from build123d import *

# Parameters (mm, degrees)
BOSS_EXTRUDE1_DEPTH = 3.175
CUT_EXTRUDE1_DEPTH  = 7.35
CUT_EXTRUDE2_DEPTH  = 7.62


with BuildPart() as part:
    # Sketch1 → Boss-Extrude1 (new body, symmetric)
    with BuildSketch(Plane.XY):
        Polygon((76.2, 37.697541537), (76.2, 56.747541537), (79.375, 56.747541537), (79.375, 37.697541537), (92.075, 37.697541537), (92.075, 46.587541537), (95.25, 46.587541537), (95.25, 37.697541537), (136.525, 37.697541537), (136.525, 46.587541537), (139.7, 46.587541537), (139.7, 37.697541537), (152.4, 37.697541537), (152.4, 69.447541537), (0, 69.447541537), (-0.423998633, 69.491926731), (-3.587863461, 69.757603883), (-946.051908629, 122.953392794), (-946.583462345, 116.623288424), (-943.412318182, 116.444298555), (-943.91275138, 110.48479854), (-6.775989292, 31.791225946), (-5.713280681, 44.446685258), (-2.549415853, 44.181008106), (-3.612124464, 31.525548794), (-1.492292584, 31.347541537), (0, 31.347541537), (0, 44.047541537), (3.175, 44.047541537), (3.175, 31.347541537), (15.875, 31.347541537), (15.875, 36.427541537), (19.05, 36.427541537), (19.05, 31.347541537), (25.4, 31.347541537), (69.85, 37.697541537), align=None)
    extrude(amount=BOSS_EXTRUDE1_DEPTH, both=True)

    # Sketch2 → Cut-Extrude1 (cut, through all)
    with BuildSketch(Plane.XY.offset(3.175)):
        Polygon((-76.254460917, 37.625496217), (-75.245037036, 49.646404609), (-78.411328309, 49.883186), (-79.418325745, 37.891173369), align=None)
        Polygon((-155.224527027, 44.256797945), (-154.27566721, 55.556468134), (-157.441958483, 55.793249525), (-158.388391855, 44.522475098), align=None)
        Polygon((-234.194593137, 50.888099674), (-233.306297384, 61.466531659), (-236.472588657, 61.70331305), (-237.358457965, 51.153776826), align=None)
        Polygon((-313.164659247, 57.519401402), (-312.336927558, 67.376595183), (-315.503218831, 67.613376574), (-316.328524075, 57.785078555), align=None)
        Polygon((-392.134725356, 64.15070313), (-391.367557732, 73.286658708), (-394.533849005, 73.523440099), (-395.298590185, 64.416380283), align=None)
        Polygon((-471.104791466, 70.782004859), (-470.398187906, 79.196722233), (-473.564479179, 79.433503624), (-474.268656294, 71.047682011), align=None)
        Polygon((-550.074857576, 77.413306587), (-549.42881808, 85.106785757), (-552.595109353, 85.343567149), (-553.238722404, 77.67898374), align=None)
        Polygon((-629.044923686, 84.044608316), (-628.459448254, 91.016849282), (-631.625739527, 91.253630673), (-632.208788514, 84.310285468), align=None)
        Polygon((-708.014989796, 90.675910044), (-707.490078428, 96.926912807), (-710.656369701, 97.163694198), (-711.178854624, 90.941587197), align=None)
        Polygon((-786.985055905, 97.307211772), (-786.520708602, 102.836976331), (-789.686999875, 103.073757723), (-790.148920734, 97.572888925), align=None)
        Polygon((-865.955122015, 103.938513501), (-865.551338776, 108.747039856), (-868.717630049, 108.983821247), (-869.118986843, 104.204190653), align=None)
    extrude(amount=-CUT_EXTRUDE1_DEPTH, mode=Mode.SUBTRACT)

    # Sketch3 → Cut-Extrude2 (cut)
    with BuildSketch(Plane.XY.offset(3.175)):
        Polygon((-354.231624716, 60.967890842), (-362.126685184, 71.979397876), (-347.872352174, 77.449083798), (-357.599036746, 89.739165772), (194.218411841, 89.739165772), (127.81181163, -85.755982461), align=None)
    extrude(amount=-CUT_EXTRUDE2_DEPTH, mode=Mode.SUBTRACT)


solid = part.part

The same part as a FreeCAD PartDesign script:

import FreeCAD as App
import Part
import Sketcher
from FreeCAD import Vector
Q = App.Units.Quantity

doc = App.newDocument("Part")
params = doc.addObject("Spreadsheet::Sheet", "Params")
for row, (alias, value) in enumerate([
    ("sketch1_width", "6 in"),
    ("sketch1_width2", "0.5 in"),
    ("sketch1_height", "0.2 in"),
    ("sketch1_length", "0.5 in"),
    ("sketch1_width3", "0.25 in"),
    ("pad1_length", "0.25 in"),
    ("sketch2_length", "0.125 in"),
    ("pocket2_length", "0.3 in"),
], start=1):
    params.set(f"A{row}", alias)
    params.set(f"B{row}", "=" + value)
    params.setAlias(f"B{row}", alias)

body = doc.addObject("PartDesign::Body", "Body")

# Sketch on XY plane
sketch1 = body.newObject("Sketcher::SketchObject", "Sketch")
sketch1.AttachmentSupport = (doc.getObject("XY_Plane"), [""])
sketch1.MapMode = "FlatFace"
sketch1.addGeometry([
    Part.LineSegment(Vector(76.2, 37.7, 0), Vector(76.2, 56.75, 0)),  # 0
    Part.LineSegment(Vector(76.2, 56.75, 0), Vector(79.38, 56.75, 0)),  # 1
    Part.LineSegment(Vector(79.38, 56.75, 0), Vector(79.38, 37.7, 0)),  # 2
    Part.LineSegment(Vector(79.38, 37.7, 0), Vector(92.08, 37.7, 0)),  # 3
    Part.LineSegment(Vector(92.08, 37.7, 0), Vector(92.08, 46.59, 0)),  # 4
    Part.LineSegment(Vector(92.08, 46.59, 0), Vector(95.25, 46.59, 0)),  # 5
    Part.LineSegment(Vector(95.25, 46.59, 0), Vector(95.25, 37.7, 0)),  # 6
    Part.LineSegment(Vector(95.25, 37.7, 0), Vector(136.53, 37.7, 0)),  # 7
    Part.LineSegment(Vector(136.53, 37.7, 0), Vector(136.53, 46.59, 0)),  # 8
    Part.LineSegment(Vector(136.53, 46.59, 0), Vector(139.7, 46.59, 0)),  # 9
    Part.LineSegment(Vector(139.7, 46.59, 0), Vector(139.7, 37.7, 0)),  # 10
    Part.LineSegment(Vector(139.7, 37.7, 0), Vector(152.4, 37.7, 0)),  # 11
    Part.LineSegment(Vector(152.4, 37.7, 0), Vector(152.4, 69.45, 0)),  # 12
    Part.LineSegment(Vector(152.4, 69.45, 0), Vector(0, 69.45, 0)),  # 13
    Part.LineSegment(Vector(0, 69.45, 0), Vector(-0.42, 69.49, 0)),  # 14
    Part.LineSegment(Vector(-0.42, 69.49, 0), Vector(-3.59, 69.76, 0)),  # 15
    Part.LineSegment(Vector(-3.59, 69.76, 0), Vector(-946.05, 122.95, 0)),  # 16
    Part.LineSegment(Vector(-946.05, 122.95, 0), Vector(-946.58, 116.62, 0)),  # 17
    Part.LineSegment(Vector(-946.58, 116.62, 0), Vector(-943.41, 116.44, 0)),  # 18
    Part.LineSegment(Vector(-943.41, 116.44, 0), Vector(-943.91, 110.48, 0)),  # 19
    Part.LineSegment(Vector(-943.91, 110.48, 0), Vector(-6.78, 31.79, 0)),  # 20
    Part.LineSegment(Vector(-6.78, 31.79, 0), Vector(-5.71, 44.45, 0)),  # 21
    Part.LineSegment(Vector(-5.71, 44.45, 0), Vector(-2.55, 44.18, 0)),  # 22
    Part.LineSegment(Vector(-2.55, 44.18, 0), Vector(-3.61, 31.53, 0)),  # 23
    Part.LineSegment(Vector(-3.61, 31.53, 0), Vector(-1.49, 31.35, 0)),  # 24
    Part.LineSegment(Vector(-1.49, 31.35, 0), Vector(0, 31.35, 0)),  # 25
    Part.LineSegment(Vector(0, 31.35, 0), Vector(0, 44.05, 0)),  # 26
    Part.LineSegment(Vector(0, 44.05, 0), Vector(3.17, 44.05, 0)),  # 27
    Part.LineSegment(Vector(3.17, 44.05, 0), Vector(3.17, 31.35, 0)),  # 28
    Part.LineSegment(Vector(3.17, 31.35, 0), Vector(15.88, 31.35, 0)),  # 29
    Part.LineSegment(Vector(15.88, 31.35, 0), Vector(15.88, 36.43, 0)),  # 30
    Part.LineSegment(Vector(15.88, 36.43, 0), Vector(19.05, 36.43, 0)),  # 31
    Part.LineSegment(Vector(19.05, 36.43, 0), Vector(19.05, 31.35, 0)),  # 32
    Part.LineSegment(Vector(19.05, 31.35, 0), Vector(25.4, 31.35, 0)),  # 33
    Part.LineSegment(Vector(25.4, 31.35, 0), Vector(69.85, 37.7, 0)),  # 34
    Part.LineSegment(Vector(69.85, 37.7, 0), Vector(76.2, 37.7, 0)),  # 35
], False)
sketch1.addConstraint([
    Sketcher.Constraint("Coincident", 0, 2, 1, 1),
    Sketcher.Constraint("Coincident", 1, 2, 2, 1),
    Sketcher.Constraint("Coincident", 2, 2, 3, 1),
    Sketcher.Constraint("Coincident", 3, 2, 4, 1),
    Sketcher.Constraint("Coincident", 4, 2, 5, 1),
    Sketcher.Constraint("Coincident", 5, 2, 6, 1),
    Sketcher.Constraint("Coincident", 6, 2, 7, 1),
    Sketcher.Constraint("Coincident", 7, 2, 8, 1),
    Sketcher.Constraint("Coincident", 8, 2, 9, 1),
    Sketcher.Constraint("Coincident", 9, 2, 10, 1),
    Sketcher.Constraint("Coincident", 10, 2, 11, 1),
    Sketcher.Constraint("Coincident", 11, 2, 12, 1),
    Sketcher.Constraint("Coincident", 12, 2, 13, 1),
    Sketcher.Constraint("Coincident", 13, 2, 14, 1),
    Sketcher.Constraint("Coincident", 14, 2, 15, 1),
    Sketcher.Constraint("Coincident", 15, 2, 16, 1),
    Sketcher.Constraint("Coincident", 16, 2, 17, 1),
    Sketcher.Constraint("Coincident", 17, 2, 18, 1),
    Sketcher.Constraint("Coincident", 18, 2, 19, 1),
    Sketcher.Constraint("Coincident", 19, 2, 20, 1),
    Sketcher.Constraint("Coincident", 20, 2, 21, 1),
    Sketcher.Constraint("Coincident", 21, 2, 22, 1),
    Sketcher.Constraint("Coincident", 22, 2, 23, 1),
    Sketcher.Constraint("Coincident", 23, 2, 24, 1),
    Sketcher.Constraint("Coincident", 24, 2, 25, 1),
    Sketcher.Constraint("Coincident", 25, 2, 26, 1),
    Sketcher.Constraint("Coincident", 26, 2, 27, 1),
    Sketcher.Constraint("Coincident", 27, 2, 28, 1),
    Sketcher.Constraint("Coincident", 28, 2, 29, 1),
    Sketcher.Constraint("Coincident", 29, 2, 30, 1),
    Sketcher.Constraint("Coincident", 30, 2, 31, 1),
    Sketcher.Constraint("Coincident", 31, 2, 32, 1),
    Sketcher.Constraint("Coincident", 32, 2, 33, 1),
    Sketcher.Constraint("Coincident", 33, 2, 34, 1),
    Sketcher.Constraint("Coincident", 34, 2, 35, 1),
    Sketcher.Constraint("Coincident", 35, 2, 0, 1),
    Sketcher.Constraint("Vertical", 0),
    Sketcher.Constraint("Horizontal", 1),
    Sketcher.Constraint("Vertical", 2),
    Sketcher.Constraint("Horizontal", 3),
    Sketcher.Constraint("Vertical", 4),
    Sketcher.Constraint("Horizontal", 5),
    Sketcher.Constraint("Vertical", 6),
    Sketcher.Constraint("Horizontal", 7),
    Sketcher.Constraint("Vertical", 8),
    Sketcher.Constraint("Horizontal", 9),
    Sketcher.Constraint("Vertical", 10),
    Sketcher.Constraint("Horizontal", 11),
    Sketcher.Constraint("Vertical", 12),
    Sketcher.Constraint("Horizontal", 13),
    Sketcher.Constraint("Horizontal", 25),
    Sketcher.Constraint("Vertical", 26),
    Sketcher.Constraint("Horizontal", 27),
    Sketcher.Constraint("Vertical", 28),
    Sketcher.Constraint("Horizontal", 29),
    Sketcher.Constraint("Vertical", 30),
    Sketcher.Constraint("Horizontal", 31),
    Sketcher.Constraint("Vertical", 32),
    Sketcher.Constraint("Horizontal", 33),
    Sketcher.Constraint("Horizontal", 35),
    Sketcher.Constraint("PointOnObject", 13, 2, -2),
    Sketcher.Constraint("PointOnObject", 25, 2, -2),
    Sketcher.Constraint("Perpendicular", 15, 17),
    Sketcher.Constraint("Parallel", 16, 18),
    Sketcher.Constraint("Parallel", 17, 19),
    Sketcher.Constraint("Perpendicular", 19, 20),
    Sketcher.Constraint("Perpendicular", 20, 21),
    Sketcher.Constraint("Perpendicular", 21, 22),
    Sketcher.Constraint("Perpendicular", 22, 23),
    Sketcher.Constraint("Perpendicular", 23, 24),
    Sketcher.Constraint("Horizontal", 3, 2, 6, 2),
    Sketcher.Constraint("Horizontal", 5, 2, 8, 2),
    Sketcher.Constraint("Horizontal", 7, 2, 10, 2),
    Sketcher.Constraint("Horizontal", 25, 2, 28, 2),
    Sketcher.Constraint("Horizontal", 29, 2, 32, 2),
    Sketcher.Constraint("Horizontal", 11, 2, 34, 2),
    Sketcher.Constraint("Equal", 1, 5),
    Sketcher.Constraint("Equal", 5, 9),
    Sketcher.Constraint("Equal", 3, 11),
    Sketcher.Constraint("Equal", 9, 27),
    Sketcher.Constraint("Equal", 11, 29),
    Sketcher.Constraint("Equal", 27, 31),
    Sketcher.Constraint("Equal", 33, 35),
    Sketcher.Constraint("Equal", 29, 26),
    Sketcher.Constraint("Equal", 15, 22),
    Sketcher.Constraint("Equal", 21, 23),
    Sketcher.Constraint("DistanceX", 13, 2, 13, 1, Q("6 in")),
    Sketcher.Constraint("DistanceX", 3, 1, 3, 2, Q("0.5 in")),
    Sketcher.Constraint("DistanceY", 30, 1, 30, 2, Q("0.2 in")),
    Sketcher.Constraint("DistanceX", -1, 1, 0, 2, Q("3 in")),
    Sketcher.Constraint("DistanceX", -1, 1, 33, 2, Q("1 in")),
    Sketcher.Constraint("Distance", 21, Q("0.5 in")),
    Sketcher.Constraint("DistanceX", 33, 1, 33, 2, Q("0.25 in")),
    Sketcher.Constraint("DistanceY", 0, 1, 0, 2, Q("0.75 in")),
    Sketcher.Constraint("DistanceY", 4, 1, 4, 2, Q("0.35 in")),
    Sketcher.Constraint("DistanceY", 12, 1, 12, 2, Q("1.25 in")),
    Sketcher.Constraint("Angle", 17, Q("-94.8 deg")),
    Sketcher.Constraint("DistanceY", 24, 2, 13, 2, Q("1.5 in")),
    Sketcher.Constraint("Distance", 15, Q("0.125 in")),
    Sketcher.Constraint("Distance", 20, Q("37.025 in")),
    Sketcher.Constraint("DistanceX", 14, 2, -1, 1, Q("0.423999 mm")),
    Sketcher.Constraint("DistanceY", -1, 1, 18, 2, Q("116.444299 mm")),
    Sketcher.Constraint("DistanceY", -1, 1, 19, 2, Q("110.484799 mm")),
    Sketcher.Constraint("DistanceX", 17, 2, 15, 2, Q("942.995599 mm")),
    Sketcher.Constraint("DistanceY", 20, 2, 14, 2, Q("37.700701 mm")),
    Sketcher.Constraint("Distance", 18, Q("3.176192 mm")),
    Sketcher.Constraint("DistanceX", 25, 1, 25, 2, Q("1.492293 mm")),
    Sketcher.Constraint("DistanceX", 16, 2, -1, 1, Q("946.051909 mm")),
])
sketch1.setExpression("Constraints[86]", "Params.sketch1_width")
sketch1.setExpression("Constraints[87]", "Params.sketch1_width2")
sketch1.setExpression("Constraints[88]", "Params.sketch1_height")
sketch1.setExpression("Constraints[91]", "Params.sketch1_length")
sketch1.setExpression("Constraints[92]", "Params.sketch1_width3")
pad1 = body.newObject("PartDesign::Pad", "Pad")
pad1.Profile = sketch1
pad1.setExpression("Length", "Params.pad1_length")
pad1.Midplane = True

# Sketch on XY plane
sketch2 = body.newObject("Sketcher::SketchObject", "Sketch001")
sketch2.AttachmentSupport = (doc.getObject("XY_Plane"), [""])
sketch2.MapMode = "FlatFace"
sketch2.AttachmentOffset = App.Placement(Vector(0, 0, 0.125 * 25.4), App.Rotation())
sketch2.addGeometry([
    Part.LineSegment(Vector(-76.3, 37.6, 0), Vector(-75.2, 49.6, 0)),  # 0
    Part.LineSegment(Vector(-75.2, 49.6, 0), Vector(-78.4, 49.9, 0)),  # 1
    Part.LineSegment(Vector(-78.4, 49.9, 0), Vector(-79.4, 37.9, 0)),  # 2
    Part.LineSegment(Vector(-79.4, 37.9, 0), Vector(-76.3, 37.6, 0)),  # 3
    Part.LineSegment(Vector(-155.2, 44.3, 0), Vector(-154.3, 55.6, 0)),  # 4
    Part.LineSegment(Vector(-154.3, 55.6, 0), Vector(-157.4, 55.8, 0)),  # 5
    Part.LineSegment(Vector(-157.4, 55.8, 0), Vector(-158.4, 44.5, 0)),  # 6
    Part.LineSegment(Vector(-158.4, 44.5, 0), Vector(-155.2, 44.3, 0)),  # 7
    Part.LineSegment(Vector(-234.2, 50.9, 0), Vector(-233.3, 61.5, 0)),  # 8
    Part.LineSegment(Vector(-233.3, 61.5, 0), Vector(-236.5, 61.7, 0)),  # 9
    Part.LineSegment(Vector(-236.5, 61.7, 0), Vector(-237.4, 51.2, 0)),  # 10
    Part.LineSegment(Vector(-237.4, 51.2, 0), Vector(-234.2, 50.9, 0)),  # 11
    Part.LineSegment(Vector(-313.2, 57.5, 0), Vector(-312.3, 67.4, 0)),  # 12
    Part.LineSegment(Vector(-312.3, 67.4, 0), Vector(-315.5, 67.6, 0)),  # 13
    Part.LineSegment(Vector(-315.5, 67.6, 0), Vector(-316.3, 57.8, 0)),  # 14
    Part.LineSegment(Vector(-316.3, 57.8, 0), Vector(-313.2, 57.5, 0)),  # 15
    Part.LineSegment(Vector(-392.1, 64.2, 0), Vector(-391.4, 73.3, 0)),  # 16
    Part.LineSegment(Vector(-391.4, 73.3, 0), Vector(-394.5, 73.5, 0)),  # 17
    Part.LineSegment(Vector(-394.5, 73.5, 0), Vector(-395.3, 64.4, 0)),  # 18
    Part.LineSegment(Vector(-395.3, 64.4, 0), Vector(-392.1, 64.2, 0)),  # 19
    Part.LineSegment(Vector(-471.1, 70.8, 0), Vector(-470.4, 79.2, 0)),  # 20
    Part.LineSegment(Vector(-470.4, 79.2, 0), Vector(-473.6, 79.4, 0)),  # 21
    Part.LineSegment(Vector(-473.6, 79.4, 0), Vector(-474.3, 71, 0)),  # 22
    Part.LineSegment(Vector(-474.3, 71, 0), Vector(-471.1, 70.8, 0)),  # 23
    Part.LineSegment(Vector(-550.1, 77.4, 0), Vector(-549.4, 85.1, 0)),  # 24
    Part.LineSegment(Vector(-549.4, 85.1, 0), Vector(-552.6, 85.3, 0)),  # 25
    Part.LineSegment(Vector(-552.6, 85.3, 0), Vector(-553.2, 77.7, 0)),  # 26
    Part.LineSegment(Vector(-553.2, 77.7, 0), Vector(-550.1, 77.4, 0)),  # 27
    Part.LineSegment(Vector(-629, 84, 0), Vector(-628.5, 91, 0)),  # 28
    Part.LineSegment(Vector(-628.5, 91, 0), Vector(-631.6, 91.3, 0)),  # 29
    Part.LineSegment(Vector(-631.6, 91.3, 0), Vector(-632.2, 84.3, 0)),  # 30
    Part.LineSegment(Vector(-632.2, 84.3, 0), Vector(-629, 84, 0)),  # 31
    Part.LineSegment(Vector(-708, 90.7, 0), Vector(-707.5, 96.9, 0)),  # 32
    Part.LineSegment(Vector(-707.5, 96.9, 0), Vector(-710.7, 97.2, 0)),  # 33
    Part.LineSegment(Vector(-710.7, 97.2, 0), Vector(-711.2, 90.9, 0)),  # 34
    Part.LineSegment(Vector(-711.2, 90.9, 0), Vector(-708, 90.7, 0)),  # 35
    Part.LineSegment(Vector(-787, 97.3, 0), Vector(-786.5, 102.8, 0)),  # 36
    Part.LineSegment(Vector(-786.5, 102.8, 0), Vector(-789.7, 103.1, 0)),  # 37
    Part.LineSegment(Vector(-789.7, 103.1, 0), Vector(-790.1, 97.6, 0)),  # 38
    Part.LineSegment(Vector(-790.1, 97.6, 0), Vector(-787, 97.3, 0)),  # 39
    Part.LineSegment(Vector(-866, 103.9, 0), Vector(-865.6, 108.7, 0)),  # 40
    Part.LineSegment(Vector(-865.6, 108.7, 0), Vector(-868.7, 109, 0)),  # 41
    Part.LineSegment(Vector(-868.7, 109, 0), Vector(-869.1, 104.2, 0)),  # 42
    Part.LineSegment(Vector(-869.1, 104.2, 0), Vector(-866, 103.9, 0)),  # 43
], False)
sketch2.addConstraint([
    Sketcher.Constraint("Coincident", 0, 2, 1, 1),
    Sketcher.Constraint("Coincident", 1, 2, 2, 1),
    Sketcher.Constraint("Coincident", 2, 2, 3, 1),
    Sketcher.Constraint("Coincident", 3, 2, 0, 1),
    Sketcher.Constraint("Coincident", 4, 2, 5, 1),
    Sketcher.Constraint("Coincident", 5, 2, 6, 1),
    Sketcher.Constraint("Coincident", 6, 2, 7, 1),
    Sketcher.Constraint("Coincident", 7, 2, 4, 1),
    Sketcher.Constraint("Coincident", 8, 2, 9, 1),
    Sketcher.Constraint("Coincident", 9, 2, 10, 1),
    Sketcher.Constraint("Coincident", 10, 2, 11, 1),
    Sketcher.Constraint("Coincident", 11, 2, 8, 1),
    Sketcher.Constraint("Coincident", 12, 2, 13, 1),
    Sketcher.Constraint("Coincident", 13, 2, 14, 1),
    Sketcher.Constraint("Coincident", 14, 2, 15, 1),
    Sketcher.Constraint("Coincident", 15, 2, 12, 1),
    Sketcher.Constraint("Coincident", 16, 2, 17, 1),
    Sketcher.Constraint("Coincident", 17, 2, 18, 1),
    Sketcher.Constraint("Coincident", 18, 2, 19, 1),
    Sketcher.Constraint("Coincident", 19, 2, 16, 1),
    Sketcher.Constraint("Coincident", 20, 2, 21, 1),
    Sketcher.Constraint("Coincident", 21, 2, 22, 1),
    Sketcher.Constraint("Coincident", 22, 2, 23, 1),
    Sketcher.Constraint("Coincident", 23, 2, 20, 1),
    Sketcher.Constraint("Coincident", 24, 2, 25, 1),
    Sketcher.Constraint("Coincident", 25, 2, 26, 1),
    Sketcher.Constraint("Coincident", 26, 2, 27, 1),
    Sketcher.Constraint("Coincident", 27, 2, 24, 1),
    Sketcher.Constraint("Coincident", 28, 2, 29, 1),
    Sketcher.Constraint("Coincident", 29, 2, 30, 1),
    Sketcher.Constraint("Coincident", 30, 2, 31, 1),
    Sketcher.Constraint("Coincident", 31, 2, 28, 1),
    Sketcher.Constraint("Coincident", 32, 2, 33, 1),
    Sketcher.Constraint("Coincident", 33, 2, 34, 1),
    Sketcher.Constraint("Coincident", 34, 2, 35, 1),
    Sketcher.Constraint("Coincident", 35, 2, 32, 1),
    Sketcher.Constraint("Coincident", 36, 2, 37, 1),
    Sketcher.Constraint("Coincident", 37, 2, 38, 1),
    Sketcher.Constraint("Coincident", 38, 2, 39, 1),
    Sketcher.Constraint("Coincident", 39, 2, 36, 1),
    Sketcher.Constraint("Coincident", 40, 2, 41, 1),
    Sketcher.Constraint("Coincident", 41, 2, 42, 1),
    Sketcher.Constraint("Coincident", 42, 2, 43, 1),
    Sketcher.Constraint("Coincident", 43, 2, 40, 1),
    Sketcher.Constraint("Parallel", 0, 2),
    Sketcher.Constraint("Perpendicular", 2, 3),
    Sketcher.Constraint("Perpendicular", 3, 4),
    Sketcher.Constraint("Parallel", 1, 5),
    Sketcher.Constraint("Parallel", 4, 6),
    Sketcher.Constraint("Perpendicular", 6, 7),
    Sketcher.Constraint("Perpendicular", 7, 8),
    Sketcher.Constraint("Parallel", 5, 9),
    Sketcher.Constraint("Parallel", 8, 10),
    Sketcher.Constraint("Perpendicular", 10, 11),
    Sketcher.Constraint("Perpendicular", 11, 12),
    Sketcher.Constraint("Parallel", 9, 13),
    Sketcher.Constraint("Parallel", 12, 14),
    Sketcher.Constraint("Perpendicular", 14, 15),
    Sketcher.Constraint("Perpendicular", 15, 16),
    Sketcher.Constraint("Parallel", 13, 17),
    Sketcher.Constraint("Parallel", 16, 18),
    Sketcher.Constraint("Perpendicular", 18, 19),
    Sketcher.Constraint("Perpendicular", 19, 20),
    Sketcher.Constraint("Parallel", 17, 21),
    Sketcher.Constraint("Parallel", 20, 22),
    Sketcher.Constraint("Perpendicular", 22, 23),
    Sketcher.Constraint("Perpendicular", 23, 24),
    Sketcher.Constraint("Parallel", 21, 25),
    Sketcher.Constraint("Parallel", 24, 26),
    Sketcher.Constraint("Perpendicular", 26, 27),
    Sketcher.Constraint("Perpendicular", 27, 28),
    Sketcher.Constraint("Parallel", 25, 29),
    Sketcher.Constraint("Parallel", 28, 30),
    Sketcher.Constraint("Perpendicular", 30, 31),
    Sketcher.Constraint("Perpendicular", 31, 32),
    Sketcher.Constraint("Parallel", 29, 33),
    Sketcher.Constraint("Parallel", 32, 34),
    Sketcher.Constraint("Perpendicular", 34, 35),
    Sketcher.Constraint("Perpendicular", 35, 36),
    Sketcher.Constraint("Parallel", 33, 37),
    Sketcher.Constraint("Parallel", 36, 38),
    Sketcher.Constraint("Perpendicular", 38, 39),
    Sketcher.Constraint("Perpendicular", 39, 40),
    Sketcher.Constraint("Parallel", 37, 41),
    Sketcher.Constraint("Parallel", 40, 42),
    Sketcher.Constraint("Perpendicular", 42, 43),
    Sketcher.Constraint("Equal", 1, 5),
    Sketcher.Constraint("Equal", 5, 9),
    Sketcher.Constraint("Equal", 9, 13),
    Sketcher.Constraint("Equal", 13, 17),
    Sketcher.Constraint("Equal", 17, 21),
    Sketcher.Constraint("Equal", 21, 25),
    Sketcher.Constraint("Equal", 25, 29),
    Sketcher.Constraint("Equal", 29, 33),
    Sketcher.Constraint("Equal", 33, 37),
    Sketcher.Constraint("Equal", 37, 41),
    Sketcher.Constraint("Angle", 0, Q("85.2 deg")),
    Sketcher.Constraint("Distance", 3, Q("0.125 in")),
    Sketcher.Constraint("DistanceY", -1, 1, 36, 2, Q("4.0486999 in")),
    Sketcher.Constraint("DistanceY", -1, 1, 11, 2, Q("50.8881 mm")),
    Sketcher.Constraint("DistanceY", -1, 1, 15, 2, Q("57.519401 mm")),
    Sketcher.Constraint("DistanceX", 37, 2, -1, 1, Q("789.687 mm")),
    Sketcher.Constraint("DistanceY", 2, 2, 6, 2, Q("6.631302 mm")),
    Sketcher.Constraint("DistanceX", 7, 2, 2, 2, Q("75.806201 mm")),
    Sketcher.Constraint("DistanceX", 7, 2, 1, 2, Q("76.813199 mm")),
    Sketcher.Constraint("DistanceY", 6, 2, 10, 2, Q("6.631302 mm")),
    Sketcher.Constraint("DistanceX", 10, 2, 5, 2, Q("79.916499 mm")),
    Sketcher.Constraint("DistanceX", 11, 2, 6, 2, Q("75.806201 mm")),
    Sketcher.Constraint("DistanceY", 10, 2, 13, 2, Q("16.4596 mm")),
    Sketcher.Constraint("DistanceX", 15, 2, 10, 2, Q("75.806201 mm")),
    Sketcher.Constraint("DistanceX", 16, 2, 15, 2, Q("78.202898 mm")),
    Sketcher.Constraint("DistanceY", 14, 2, 18, 2, Q("6.631302 mm")),
    Sketcher.Constraint("DistanceX", 19, 2, 14, 2, Q("75.806201 mm")),
    Sketcher.Constraint("DistanceY", 19, 2, 21, 2, Q("15.2828 mm")),
    Sketcher.Constraint("DistanceY", 18, 2, 22, 2, Q("6.631302 mm")),
    Sketcher.Constraint("DistanceX", 23, 2, 18, 2, Q("75.806201 mm")),
    Sketcher.Constraint("DistanceY", 22, 2, 26, 2, Q("6.631302 mm")),
    Sketcher.Constraint("DistanceX", 27, 2, 22, 2, Q("75.806201 mm")),
    Sketcher.Constraint("DistanceY", 26, 2, 30, 2, Q("6.631302 mm")),
    Sketcher.Constraint("DistanceX", 31, 2, 26, 2, Q("75.806201 mm")),
    Sketcher.Constraint("DistanceY", 30, 2, 34, 2, Q("6.631302 mm")),
    Sketcher.Constraint("DistanceX", 35, 2, 30, 2, Q("75.806201 mm")),
    Sketcher.Constraint("DistanceY", 34, 2, 38, 2, Q("6.631302 mm")),
    Sketcher.Constraint("DistanceX", 39, 2, 34, 2, Q("75.806201 mm")),
    Sketcher.Constraint("DistanceY", 38, 2, 42, 2, Q("6.631302 mm")),
    Sketcher.Constraint("DistanceX", 43, 2, 38, 2, Q("75.806201 mm")),
    Sketcher.Constraint("Distance", 4, Q("11.339439 mm")),
    Sketcher.Constraint("Distance", 26, Q("7.691559 mm")),
    Sketcher.Constraint("Distance", 28, Q("6.99678 mm")),
    Sketcher.Constraint("Distance", 40, Q("4.82545 mm")),
    Sketcher.Constraint("DistanceY", -1, 1, 8, 2, Q("61.466532 mm")),
    Sketcher.Constraint("DistanceX", 32, 2, -1, 1, Q("707.490078 mm")),
])
sketch2.setExpression("Constraints[97]", "Params.sketch2_length")
pocket1 = body.newObject("PartDesign::Pocket", "Pocket")
pocket1.Profile = sketch2
pocket1.Type = "ThroughAll"

# Sketch on XY plane
sketch3 = body.newObject("Sketcher::SketchObject", "Sketch002")
sketch3.AttachmentSupport = (doc.getObject("XY_Plane"), [""])
sketch3.MapMode = "FlatFace"
sketch3.AttachmentOffset = App.Placement(Vector(0, 0, 0.125 * 25.4), App.Rotation())
sketch3.addGeometry([
    Part.LineSegment(Vector(-362, 72, 0), Vector(-354, 61, 0)),  # 0
    Part.LineSegment(Vector(-354, 61, 0), Vector(128, -86, 0)),  # 1
    Part.LineSegment(Vector(128, -86, 0), Vector(194, 90, 0)),  # 2
    Part.LineSegment(Vector(194, 90, 0), Vector(-358, 90, 0)),  # 3
    Part.LineSegment(Vector(-358, 90, 0), Vector(-348, 77, 0)),  # 4
    Part.LineSegment(Vector(-348, 77, 0), Vector(-362, 72, 0)),  # 5
], False)
sketch3.addConstraint([
    Sketcher.Constraint("Coincident", 0, 2, 1, 1),
    Sketcher.Constraint("Coincident", 1, 2, 2, 1),
    Sketcher.Constraint("Coincident", 2, 2, 3, 1),
    Sketcher.Constraint("Coincident", 3, 2, 4, 1),
    Sketcher.Constraint("Coincident", 4, 2, 5, 1),
    Sketcher.Constraint("Coincident", 5, 2, 0, 1),
    Sketcher.Constraint("Horizontal", 3),
    Sketcher.Constraint("DistanceX", 3, 2, 3, 1, Q("551.817449 mm")),
    Sketcher.Constraint("DistanceX", 1, 2, 2, 2, Q("66.4066 mm")),
    Sketcher.Constraint("Distance", 2, Q("187.638971 mm")),
    Sketcher.Constraint("Distance", 4, Q("15.673369 mm")),
    Sketcher.Constraint("DistanceY", -1, 1, 0, 2, Q("60.967891 mm")),
    Sketcher.Constraint("DistanceX", -1, 1, 1, 2, Q("127.811812 mm")),
    Sketcher.Constraint("DistanceY", 4, 2, 3, 2, Q("12.290082 mm")),
    Sketcher.Constraint("DistanceX", 5, 2, 0, 2, Q("7.89506 mm")),
    Sketcher.Constraint("DistanceX", 5, 2, 3, 2, Q("4.527648 mm")),
    Sketcher.Constraint("DistanceY", 1, 2, 5, 2, Q("157.73538 mm")),
    Sketcher.Constraint("Distance", 0, Q("13.549364 mm")),
])
pocket2 = body.newObject("PartDesign::Pocket", "Pocket001")
pocket2.Profile = sketch3
pocket2.setExpression("Length", "Params.pocket2_length")

doc.recompute()
